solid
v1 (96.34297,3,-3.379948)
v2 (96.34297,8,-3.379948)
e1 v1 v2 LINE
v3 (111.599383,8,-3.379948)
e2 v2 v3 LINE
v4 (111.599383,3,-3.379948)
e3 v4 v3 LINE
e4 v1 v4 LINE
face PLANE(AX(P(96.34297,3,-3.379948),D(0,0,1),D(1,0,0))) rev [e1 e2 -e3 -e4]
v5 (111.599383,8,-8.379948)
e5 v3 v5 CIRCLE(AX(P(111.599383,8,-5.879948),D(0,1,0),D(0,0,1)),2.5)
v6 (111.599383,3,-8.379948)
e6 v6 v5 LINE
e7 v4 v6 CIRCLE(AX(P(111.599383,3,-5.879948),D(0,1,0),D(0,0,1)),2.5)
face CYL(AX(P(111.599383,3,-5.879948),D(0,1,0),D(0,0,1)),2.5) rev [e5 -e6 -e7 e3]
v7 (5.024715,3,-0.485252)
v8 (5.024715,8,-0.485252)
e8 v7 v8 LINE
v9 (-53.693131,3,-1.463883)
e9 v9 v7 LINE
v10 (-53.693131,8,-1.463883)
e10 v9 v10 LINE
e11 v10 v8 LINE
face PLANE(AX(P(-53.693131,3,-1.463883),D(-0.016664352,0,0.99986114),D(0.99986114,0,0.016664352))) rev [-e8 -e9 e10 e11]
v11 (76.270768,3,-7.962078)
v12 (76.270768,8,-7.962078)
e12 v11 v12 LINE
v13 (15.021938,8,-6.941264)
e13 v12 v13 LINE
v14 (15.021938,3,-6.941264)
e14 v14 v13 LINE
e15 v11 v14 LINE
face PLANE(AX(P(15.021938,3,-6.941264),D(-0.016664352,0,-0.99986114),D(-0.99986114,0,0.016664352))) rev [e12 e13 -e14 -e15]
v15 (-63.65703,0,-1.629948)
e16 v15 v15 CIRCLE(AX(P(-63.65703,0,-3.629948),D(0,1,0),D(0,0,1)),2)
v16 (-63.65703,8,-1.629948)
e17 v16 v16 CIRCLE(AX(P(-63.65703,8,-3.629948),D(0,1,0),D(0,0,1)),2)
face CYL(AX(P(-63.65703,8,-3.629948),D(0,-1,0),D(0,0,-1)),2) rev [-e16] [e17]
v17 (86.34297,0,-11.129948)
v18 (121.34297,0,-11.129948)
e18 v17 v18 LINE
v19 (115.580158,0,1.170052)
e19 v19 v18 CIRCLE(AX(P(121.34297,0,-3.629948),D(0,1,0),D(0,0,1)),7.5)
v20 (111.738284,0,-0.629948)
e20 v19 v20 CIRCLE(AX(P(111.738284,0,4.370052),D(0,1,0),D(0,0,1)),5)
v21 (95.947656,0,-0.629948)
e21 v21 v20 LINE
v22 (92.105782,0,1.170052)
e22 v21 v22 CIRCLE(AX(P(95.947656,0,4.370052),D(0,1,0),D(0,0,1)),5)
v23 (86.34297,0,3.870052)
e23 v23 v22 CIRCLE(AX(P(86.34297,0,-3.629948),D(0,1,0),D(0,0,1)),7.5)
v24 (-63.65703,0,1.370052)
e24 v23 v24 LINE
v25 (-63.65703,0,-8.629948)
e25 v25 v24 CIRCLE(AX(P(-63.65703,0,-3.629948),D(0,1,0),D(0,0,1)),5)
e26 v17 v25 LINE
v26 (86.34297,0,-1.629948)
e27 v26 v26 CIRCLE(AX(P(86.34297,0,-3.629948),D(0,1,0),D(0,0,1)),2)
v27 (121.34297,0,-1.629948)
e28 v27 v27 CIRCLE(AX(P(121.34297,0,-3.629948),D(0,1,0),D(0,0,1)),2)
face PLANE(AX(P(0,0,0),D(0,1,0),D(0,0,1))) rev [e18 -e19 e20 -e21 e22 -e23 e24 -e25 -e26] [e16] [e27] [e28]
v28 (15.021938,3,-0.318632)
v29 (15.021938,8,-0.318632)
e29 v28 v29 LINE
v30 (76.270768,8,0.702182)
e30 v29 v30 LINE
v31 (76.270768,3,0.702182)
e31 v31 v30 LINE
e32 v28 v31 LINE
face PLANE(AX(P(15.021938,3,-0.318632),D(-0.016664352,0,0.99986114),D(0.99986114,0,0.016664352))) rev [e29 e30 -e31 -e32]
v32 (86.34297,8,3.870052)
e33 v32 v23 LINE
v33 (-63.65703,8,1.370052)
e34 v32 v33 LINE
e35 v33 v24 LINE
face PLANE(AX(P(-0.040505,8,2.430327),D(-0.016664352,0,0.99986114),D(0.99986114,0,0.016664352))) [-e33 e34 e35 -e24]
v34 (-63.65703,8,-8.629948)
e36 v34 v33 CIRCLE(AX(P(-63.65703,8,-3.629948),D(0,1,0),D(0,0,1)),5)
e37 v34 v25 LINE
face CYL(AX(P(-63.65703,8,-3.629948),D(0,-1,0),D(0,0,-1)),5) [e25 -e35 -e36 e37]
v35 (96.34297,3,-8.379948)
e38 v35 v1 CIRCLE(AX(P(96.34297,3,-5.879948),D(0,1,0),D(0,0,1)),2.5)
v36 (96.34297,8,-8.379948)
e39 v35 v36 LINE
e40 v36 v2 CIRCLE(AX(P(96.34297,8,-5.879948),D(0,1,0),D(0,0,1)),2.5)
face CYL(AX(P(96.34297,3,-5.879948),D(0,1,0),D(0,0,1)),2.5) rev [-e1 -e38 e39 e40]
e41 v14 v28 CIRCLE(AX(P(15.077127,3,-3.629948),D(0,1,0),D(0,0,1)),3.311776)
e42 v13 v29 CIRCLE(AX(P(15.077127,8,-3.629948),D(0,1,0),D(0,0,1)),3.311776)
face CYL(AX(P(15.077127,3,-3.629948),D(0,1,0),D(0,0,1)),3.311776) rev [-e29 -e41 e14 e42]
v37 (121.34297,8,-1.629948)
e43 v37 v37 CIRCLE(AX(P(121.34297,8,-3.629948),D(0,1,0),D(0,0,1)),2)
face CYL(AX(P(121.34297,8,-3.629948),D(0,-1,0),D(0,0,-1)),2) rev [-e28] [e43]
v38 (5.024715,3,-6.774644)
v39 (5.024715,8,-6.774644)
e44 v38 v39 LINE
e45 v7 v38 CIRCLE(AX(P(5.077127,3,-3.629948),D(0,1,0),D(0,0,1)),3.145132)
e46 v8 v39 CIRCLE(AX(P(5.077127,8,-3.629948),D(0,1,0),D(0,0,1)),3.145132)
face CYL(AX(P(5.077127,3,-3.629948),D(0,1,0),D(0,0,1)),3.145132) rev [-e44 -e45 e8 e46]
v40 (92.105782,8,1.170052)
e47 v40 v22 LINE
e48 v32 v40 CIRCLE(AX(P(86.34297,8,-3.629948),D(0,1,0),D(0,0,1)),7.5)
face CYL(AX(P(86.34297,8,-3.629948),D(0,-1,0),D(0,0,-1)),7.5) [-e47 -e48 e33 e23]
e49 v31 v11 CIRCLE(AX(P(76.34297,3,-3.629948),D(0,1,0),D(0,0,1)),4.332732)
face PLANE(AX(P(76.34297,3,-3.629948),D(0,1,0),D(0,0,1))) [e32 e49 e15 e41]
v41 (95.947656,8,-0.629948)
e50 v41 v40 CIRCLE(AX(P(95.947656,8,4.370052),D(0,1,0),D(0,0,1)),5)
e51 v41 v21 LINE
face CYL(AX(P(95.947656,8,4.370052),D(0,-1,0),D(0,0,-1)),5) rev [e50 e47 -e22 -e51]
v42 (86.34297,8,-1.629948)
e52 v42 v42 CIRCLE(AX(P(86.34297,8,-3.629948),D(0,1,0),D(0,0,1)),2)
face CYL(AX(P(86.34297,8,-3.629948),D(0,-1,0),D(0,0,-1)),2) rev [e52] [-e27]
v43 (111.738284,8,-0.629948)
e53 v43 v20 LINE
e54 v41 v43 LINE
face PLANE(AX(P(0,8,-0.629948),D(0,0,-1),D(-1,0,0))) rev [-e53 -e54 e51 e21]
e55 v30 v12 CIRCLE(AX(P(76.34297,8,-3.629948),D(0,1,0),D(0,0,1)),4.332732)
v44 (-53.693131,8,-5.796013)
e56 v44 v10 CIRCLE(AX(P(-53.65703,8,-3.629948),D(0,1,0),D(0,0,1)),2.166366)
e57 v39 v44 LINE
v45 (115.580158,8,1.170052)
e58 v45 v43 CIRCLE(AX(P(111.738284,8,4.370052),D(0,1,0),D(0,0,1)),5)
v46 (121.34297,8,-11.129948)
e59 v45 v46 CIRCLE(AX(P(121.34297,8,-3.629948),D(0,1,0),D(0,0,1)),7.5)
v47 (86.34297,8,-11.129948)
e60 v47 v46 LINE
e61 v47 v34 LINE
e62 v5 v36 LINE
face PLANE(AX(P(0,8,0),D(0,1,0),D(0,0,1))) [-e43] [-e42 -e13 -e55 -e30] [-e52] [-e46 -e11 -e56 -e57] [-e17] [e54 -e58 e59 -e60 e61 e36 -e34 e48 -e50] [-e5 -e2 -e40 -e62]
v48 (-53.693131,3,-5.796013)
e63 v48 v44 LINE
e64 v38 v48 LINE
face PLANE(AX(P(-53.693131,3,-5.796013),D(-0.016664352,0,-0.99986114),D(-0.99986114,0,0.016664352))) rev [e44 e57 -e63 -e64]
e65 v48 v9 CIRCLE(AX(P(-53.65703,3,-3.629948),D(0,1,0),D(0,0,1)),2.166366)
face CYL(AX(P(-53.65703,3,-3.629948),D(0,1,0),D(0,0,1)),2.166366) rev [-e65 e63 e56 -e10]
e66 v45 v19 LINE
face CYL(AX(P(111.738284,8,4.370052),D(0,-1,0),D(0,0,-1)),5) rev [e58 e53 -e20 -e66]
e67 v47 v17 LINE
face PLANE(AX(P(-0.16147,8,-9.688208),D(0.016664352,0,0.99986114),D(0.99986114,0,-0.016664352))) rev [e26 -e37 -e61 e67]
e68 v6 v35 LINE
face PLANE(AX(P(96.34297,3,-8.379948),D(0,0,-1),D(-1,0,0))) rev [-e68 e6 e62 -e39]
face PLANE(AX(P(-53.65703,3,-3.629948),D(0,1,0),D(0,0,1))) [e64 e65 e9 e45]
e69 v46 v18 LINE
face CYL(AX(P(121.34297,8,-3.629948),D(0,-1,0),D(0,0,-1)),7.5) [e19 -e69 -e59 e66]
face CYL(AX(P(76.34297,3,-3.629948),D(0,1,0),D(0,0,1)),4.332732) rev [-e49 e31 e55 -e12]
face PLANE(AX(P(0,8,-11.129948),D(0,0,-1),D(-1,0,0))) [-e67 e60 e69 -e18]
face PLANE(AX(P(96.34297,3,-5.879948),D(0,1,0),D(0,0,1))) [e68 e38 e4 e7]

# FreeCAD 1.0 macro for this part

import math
import FreeCAD as App
import Part
import Sketcher
from FreeCAD import Vector

doc = App.newDocument("Part")
body = doc.addObject("PartDesign::Body", "Body")

sketch1 = body.newObject("Sketcher::SketchObject", "Sketch")
sketch1.AttachmentSupport = (doc.getObject("XZ_Plane"), [""])
sketch1.MapMode = "FlatFace"
sketch1.addGeometry(Part.LineSegment(Vector(121.3, -11.1, 0), Vector(86.3, -11.1, 0)), False)
sketch1.addGeometry(Part.LineSegment(Vector(86.3, -11.1, 0), Vector(-63.7, -8.6, 0)), False)
sketch1.addGeometry(Part.ArcOfCircle(Part.Circle(Vector(-63.7, -3.6, 0), Vector(0, 0, 1), 5), math.radians(90), math.radians(270)), False)
sketch1.addGeometry(Part.LineSegment(Vector(-63.7, 1.4, 0), Vector(86.3, 3.9, 0)), False)
sketch1.addGeometry(Part.ArcOfCircle(Part.Circle(Vector(86.3, -3.6, 0), Vector(0, 0, 1), 7.5), math.radians(40), math.radians(90)), False)
sketch1.addGeometry(Part.ArcOfCircle(Part.Circle(Vector(95.9, 4.4, 0), Vector(0, 0, 1), 5), math.radians(-140), math.radians(-90)), False)
sketch1.addGeometry(Part.LineSegment(Vector(95.9, -0.6, 0), Vector(111.7, -0.6, 0)), False)
sketch1.addGeometry(Part.ArcOfCircle(Part.Circle(Vector(111.7, 4.4, 0), Vector(0, 0, 1), 5), math.radians(-90), math.radians(-40)), False)
sketch1.addGeometry(Part.ArcOfCircle(Part.Circle(Vector(121.3, -3.6, 0), Vector(0, 0, 1), 7.5), math.radians(90), math.radians(140)), False)
sketch1.addGeometry(Part.ArcOfCircle(Part.Circle(Vector(121.3, -3.6, 0), Vector(0, 0, 1), 7.5), math.radians(24), math.radians(90)), False)
sketch1.addGeometry(Part.ArcOfCircle(Part.Circle(Vector(121.3, -3.6, 0), Vector(0, 0, 1), 7.5), math.radians(-90), math.radians(24)), False)
sketch1.addGeometry(Part.Circle(Vector(-63.7, -3.6, 0), Vector(0, 0, 1), 2), False)
sketch1.addGeometry(Part.Circle(Vector(86.3, -3.6, 0), Vector(0, 0, 1), 2), False)
sketch1.addGeometry(Part.Circle(Vector(121.3, -3.6, 0), Vector(0, 0, 1), 2), False)
sketch1.addConstraint(Sketcher.Constraint("Coincident", 0, 2, 1, 1))
sketch1.addConstraint(Sketcher.Constraint("Coincident", 1, 2, 2, 2))
sketch1.addConstraint(Sketcher.Constraint("Coincident", 2, 1, 3, 1))
sketch1.addConstraint(Sketcher.Constraint("Coincident", 3, 2, 4, 2))
sketch1.addConstraint(Sketcher.Constraint("Tangent", 4, 1, 5, 1))
sketch1.addConstraint(Sketcher.Constraint("Tangent", 5, 2, 6, 1))
sketch1.addConstraint(Sketcher.Constraint("Tangent", 6, 2, 7, 1))
sketch1.addConstraint(Sketcher.Constraint("Tangent", 7, 2, 8, 2))
sketch1.addConstraint(Sketcher.Constraint("Tangent", 8, 1, 9, 2))
sketch1.addConstraint(Sketcher.Constraint("Tangent", 9, 1, 10, 2))
sketch1.addConstraint(Sketcher.Constraint("Tangent", 10, 1, 0, 1))
sketch1.addConstraint(Sketcher.Constraint("Horizontal", 0))
sketch1.addConstraint(Sketcher.Constraint("Horizontal", 6))
sketch1.addConstraint(Sketcher.Constraint("Coincident", 10, 3, 8, 3))
sketch1.addConstraint(Sketcher.Constraint("Coincident", 11, 3, 2, 3))
sketch1.addConstraint(Sketcher.Constraint("Coincident", 12, 3, 4, 3))
sketch1.addConstraint(Sketcher.Constraint("Coincident", 13, 3, 8, 3))
sketch1.addConstraint(Sketcher.Constraint("Equal", 2, 5))
sketch1.addConstraint(Sketcher.Constraint("Equal", 5, 7))
sketch1.addConstraint(Sketcher.Constraint("Equal", 4, 8))
sketch1.addConstraint(Sketcher.Constraint("Equal", 11, 12))
sketch1.addConstraint(Sketcher.Constraint("Equal", 12, 13))
sketch1.addConstraint(Sketcher.Constraint("Horizontal", 2, 3, 4, 3))
sketch1.addConstraint(Sketcher.Constraint("Horizontal", 4, 3, 8, 3))
sketch1.addConstraint(Sketcher.Constraint("Horizontal", 6, 2, 9, 1))
sketch1.addConstraint(Sketcher.Constraint("Vertical", 12, 3, 0, 2))
sketch1.addConstraint(Sketcher.Constraint("Vertical", 11, 3, 1, 2))
sketch1.addConstraint(Sketcher.Constraint("Vertical", 1, 2, 2, 1))
sketch1.addConstraint(Sketcher.Constraint("Vertical", 0, 2, 3, 2))
sketch1.addConstraint(Sketcher.Constraint("Vertical", 13, 3, 8, 1))
sketch1.addConstraint(Sketcher.Constraint("Diameter", 11, 4.0))
sketch1.addConstraint(Sketcher.Constraint("Radius", 2, 5.0))
sketch1.addConstraint(Sketcher.Constraint("Radius", 4, 7.5))
sketch1.addConstraint(Sketcher.Constraint("DistanceX", 0, 2, 0, 1, 35.0))
sketch1.addConstraint(Sketcher.Constraint("DistanceX", 2, 3, 4, 3, 150.0))
sketch1.addConstraint(Sketcher.Constraint("DistanceY", 4, 3, 5, 3, 8.0))
sketch1.addConstraint(Sketcher.Constraint("DistanceX", 2, 3, -1, 1, 63.65703))
sketch1.addConstraint(Sketcher.Constraint("DistanceY", 2, 3, -1, 1, 3.629948))
pad1 = body.newObject("PartDesign::Pad", "Pad")
pad1.Profile = sketch1
pad1.Length = 8
pad1.Reversed = True

sketch2 = body.newObject("Sketcher::SketchObject", "Sketch001")
sketch2.AttachmentSupport = (doc.getObject("XZ_Plane"), [""])
sketch2.MapMode = "FlatFace"
sketch2.AttachmentOffset = App.Placement(Vector(0, 0, -8), App.Rotation())
sketch2.addGeometry(Part.LineSegment(Vector(5, -6.8, 0), Vector(-53.7, -5.8, 0)), False)
sketch2.addGeometry(Part.ArcOfCircle(Part.Circle(Vector(-53.7, -3.6, 0), Vector(0, 0, 1), 2.2), math.radians(91), math.radians(269)), False)
sketch2.addGeometry(Part.LineSegment(Vector(-53.7, -1.5, 0), Vector(5, -0.5, 0)), False)
sketch2.addGeometry(Part.ArcOfCircle(Part.Circle(Vector(5.1, -3.6, 0), Vector(0, 0, 1), 3.1), math.radians(-91), math.radians(91)), False)
sketch2.addGeometry(Part.LineSegment(Vector(111.6, -8.4, 0), Vector(96.3, -8.4, 0)), False)
sketch2.addGeometry(Part.ArcOfCircle(Part.Circle(Vector(96.3, -5.9, 0), Vector(0, 0, 1), 2.5), math.radians(90), math.radians(270)), False)
sketch2.addGeometry(Part.LineSegment(Vector(96.3, -3.4, 0), Vector(111.6, -3.4, 0)), False)
sketch2.addGeometry(Part.ArcOfCircle(Part.Circle(Vector(111.6, -5.9, 0), Vector(0, 0, 1), 2.5), math.radians(-90), math.radians(90)), False)
sketch2.addGeometry(Part.LineSegment(Vector(76.3, -8, 0), Vector(15, -6.9, 0)), False)
sketch2.addGeometry(Part.ArcOfCircle(Part.Circle(Vector(15.1, -3.6, 0), Vector(0, 0, 1), 3.3), math.radians(91), math.radians(269)), False)
sketch2.addGeometry(Part.LineSegment(Vector(15, -0.3, 0), Vector(76.3, 0.7, 0)), False)
sketch2.addGeometry(Part.ArcOfCircle(Part.Circle(Vector(76.3, -3.6, 0), Vector(0, 0, 1), 4.3), math.radians(-91), math.radians(91)), False)
sketch2.addConstraint(Sketcher.Constraint("Tangent", 0, 2, 1, 2))
sketch2.addConstraint(Sketcher.Constraint("Tangent", 1, 1, 2, 1))
sketch2.addConstraint(Sketcher.Constraint("Tangent", 2, 2, 3, 2))
sketch2.addConstraint(Sketcher.Constraint("Tangent", 3, 1, 0, 1))
sketch2.addConstraint(Sketcher.Constraint("Tangent", 4, 2, 5, 2))
sketch2.addConstraint(Sketcher.Constraint("Tangent", 5, 1, 6, 1))
sketch2.addConstraint(Sketcher.Constraint("Tangent", 6, 2, 7, 2))
sketch2.addConstraint(Sketcher.Constraint("Tangent", 7, 1, 4, 1))
sketch2.addConstraint(Sketcher.Constraint("Tangent", 8, 2, 9, 2))
sketch2.addConstraint(Sketcher.Constraint("Tangent", 9, 1, 10, 1))
sketch2.addConstraint(Sketcher.Constraint("Tangent", 10, 2, 11, 2))
sketch2.addConstraint(Sketcher.Constraint("Tangent", 11, 1, 8, 1))
sketch2.addConstraint(Sketcher.Constraint("Horizontal", 4))
sketch2.addConstraint(Sketcher.Constraint("Horizontal", 6))
sketch2.addConstraint(Sketcher.Constraint("Parallel", 0, 8))
sketch2.addConstraint(Sketcher.Constraint("Parallel", 2, 10))
sketch2.addConstraint(Sketcher.Constraint("Horizontal", 1, 3, 3, 3))
sketch2.addConstraint(Sketcher.Constraint("Horizontal", 3, 3, 9, 3))
sketch2.addConstraint(Sketcher.Constraint("Radius", 5, 2.5))
sketch2.addConstraint(Sketcher.Constraint("DistanceX", 1, 3, 5, 3, 150.0))
sketch2.addConstraint(Sketcher.Constraint("DistanceX", 3, 3, 9, 3, 10.0))
sketch2.addConstraint(Sketcher.Constraint("DistanceX", 11, 3, 5, 3, 20.0))
sketch2.addConstraint(Sketcher.Constraint("Radius", 11, 4.332732))
sketch2.addConstraint(Sketcher.Constraint("DistanceY", 5, 3, 3, 3, 2.25))
sketch2.addConstraint(Sketcher.Constraint("Distance", 0, 58.726001))
sketch2.addConstraint(Sketcher.Constraint("Radius", 1, 2.166366))
sketch2.addConstraint(Sketcher.Constraint("Radius", 3, 3.145132))
sketch2.addConstraint(Sketcher.Constraint("DistanceX", 4, 2, 4, 1, 15.256412))
sketch2.addConstraint(Sketcher.Constraint("DistanceX", 1, 3, -1, 1, 53.65703))
sketch2.addConstraint(Sketcher.Constraint("DistanceY", 1, 3, -1, 1, 3.629948))
pocket1 = body.newObject("PartDesign::Pocket", "Pocket")
pocket1.Profile = sketch2
pocket1.Length = 5
pocket1.Reversed = True

doc.recompute()
